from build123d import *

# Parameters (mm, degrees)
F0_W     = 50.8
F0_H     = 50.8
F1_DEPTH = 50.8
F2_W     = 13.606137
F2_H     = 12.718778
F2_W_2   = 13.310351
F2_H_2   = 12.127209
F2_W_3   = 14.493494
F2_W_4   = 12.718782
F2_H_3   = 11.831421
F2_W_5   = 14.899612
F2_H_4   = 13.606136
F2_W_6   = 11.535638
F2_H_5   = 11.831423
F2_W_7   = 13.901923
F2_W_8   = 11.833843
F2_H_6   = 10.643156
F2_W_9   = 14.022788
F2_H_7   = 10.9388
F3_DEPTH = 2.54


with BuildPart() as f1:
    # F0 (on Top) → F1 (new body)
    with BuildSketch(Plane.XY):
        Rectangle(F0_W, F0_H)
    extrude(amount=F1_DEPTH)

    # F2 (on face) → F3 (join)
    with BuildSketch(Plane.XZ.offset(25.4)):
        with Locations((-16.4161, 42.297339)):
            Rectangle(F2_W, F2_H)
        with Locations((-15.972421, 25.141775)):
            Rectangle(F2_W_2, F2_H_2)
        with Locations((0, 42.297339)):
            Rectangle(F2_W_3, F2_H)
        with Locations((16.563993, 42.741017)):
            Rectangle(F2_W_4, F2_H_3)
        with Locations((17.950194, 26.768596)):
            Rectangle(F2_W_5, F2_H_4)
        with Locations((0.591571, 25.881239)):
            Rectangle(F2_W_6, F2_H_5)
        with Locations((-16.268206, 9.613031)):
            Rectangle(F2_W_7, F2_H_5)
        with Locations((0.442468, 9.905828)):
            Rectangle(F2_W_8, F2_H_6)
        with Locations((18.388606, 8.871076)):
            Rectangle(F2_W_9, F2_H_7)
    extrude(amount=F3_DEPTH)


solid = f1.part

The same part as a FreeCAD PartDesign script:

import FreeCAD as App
import Part
import Sketcher
from FreeCAD import Vector
Q = App.Units.Quantity

doc = App.newDocument("Part")
body = doc.addObject("PartDesign::Body", "Body")

sketch1 = body.newObject("Sketcher::SketchObject", "Sketch")
sketch1.AttachmentSupport = (doc.getObject("XY_Plane"), [""])
sketch1.MapMode = "FlatFace"
sketch1.addGeometry(Part.LineSegment(Vector(-25, 25, 0), Vector(-25, -25, 0)), False)
sketch1.addGeometry(Part.LineSegment(Vector(-25, -25, 0), Vector(25, -25, 0)), False)
sketch1.addGeometry(Part.LineSegment(Vector(25, -25, 0), Vector(25, 25, 0)), False)
sketch1.addGeometry(Part.LineSegment(Vector(25, 25, 0), Vector(-25, 25, 0)), False)
sketch1.addConstraint(Sketcher.Constraint("Coincident", 0, 2, 1, 1))
sketch1.addConstraint(Sketcher.Constraint("Coincident", 1, 2, 2, 1))
sketch1.addConstraint(Sketcher.Constraint("Coincident", 2, 2, 3, 1))
sketch1.addConstraint(Sketcher.Constraint("Coincident", 3, 2, 0, 1))
sketch1.addConstraint(Sketcher.Constraint("Vertical", 0))
sketch1.addConstraint(Sketcher.Constraint("Horizontal", 1))
sketch1.addConstraint(Sketcher.Constraint("Vertical", 2))
sketch1.addConstraint(Sketcher.Constraint("Horizontal", 3))
sketch1.addConstraint(Sketcher.Constraint("Symmetric", 0, 2, 2, 2, -1, 1))
sketch1.addConstraint(Sketcher.Constraint("Equal", 3, 0))
sketch1.addConstraint(Sketcher.Constraint("DistanceX", 1, 1, 1, 2, Q("2 in")))
pad1 = body.newObject("PartDesign::Pad", "Pad")
pad1.Profile = sketch1
pad1.Length = Q("2 in")

sketch2 = body.newObject("Sketcher::SketchObject", "Sketch001")
sketch2.AttachmentSupport = (doc.getObject("XZ_Plane"), [""])
sketch2.MapMode = "FlatFace"
sketch2.AttachmentOffset = App.Placement(Vector(0, 0, 1 * 25.4), App.Rotation())
sketch2.addGeometry(Part.LineSegment(Vector(-23, 49, 0), Vector(-23, 36, 0)), False)
sketch2.addGeometry(Part.LineSegment(Vector(-23, 36, 0), Vector(-10, 36, 0)), False)
sketch2.addGeometry(Part.LineSegment(Vector(-10, 36, 0), Vector(-10, 49, 0)), False)
sketch2.addGeometry(Part.LineSegment(Vector(-10, 49, 0), Vector(-23, 49, 0)), False)
sketch2.addGeometry(Part.LineSegment(Vector(-23, 31, 0), Vector(-23, 19, 0)), False)
sketch2.addGeometry(Part.LineSegment(Vector(-23, 19, 0), Vector(-9, 19, 0)), False)
sketch2.addGeometry(Part.LineSegment(Vector(-9, 19, 0), Vector(-9, 31, 0)), False)
sketch2.addGeometry(Part.LineSegment(Vector(-9, 31, 0), Vector(-23, 31, 0)), False)
sketch2.addGeometry(Part.LineSegment(Vector(-7, 49, 0), Vector(-7, 36, 0)), False)
sketch2.addGeometry(Part.LineSegment(Vector(-7, 36, 0), Vector(7, 36, 0)), False)
sketch2.addGeometry(Part.LineSegment(Vector(7, 36, 0), Vector(7, 49, 0)), False)
sketch2.addGeometry(Part.LineSegment(Vector(7, 49, 0), Vector(-7, 49, 0)), False)
sketch2.addGeometry(Part.LineSegment(Vector(10, 49, 0), Vector(10, 37, 0)), False)
sketch2.addGeometry(Part.LineSegment(Vector(10, 37, 0), Vector(23, 37, 0)), False)
sketch2.addGeometry(Part.LineSegment(Vector(23, 37, 0), Vector(23, 49, 0)), False)
sketch2.addGeometry(Part.LineSegment(Vector(23, 49, 0), Vector(10, 49, 0)), False)
sketch2.addGeometry(Part.LineSegment(Vector(11, 34, 0), Vector(11, 20, 0)), False)
sketch2.addGeometry(Part.LineSegment(Vector(11, 20, 0), Vector(25, 20, 0)), False)
sketch2.addGeometry(Part.LineSegment(Vector(25, 20, 0), Vector(25, 34, 0)), False)
sketch2.addGeometry(Part.LineSegment(Vector(25, 34, 0), Vector(11, 34, 0)), False)
sketch2.addGeometry(Part.LineSegment(Vector(-5, 32, 0), Vector(-5, 20, 0)), False)
sketch2.addGeometry(Part.LineSegment(Vector(-5, 20, 0), Vector(6, 20, 0)), False)
sketch2.addGeometry(Part.LineSegment(Vector(6, 20, 0), Vector(6, 32, 0)), False)
sketch2.addGeometry(Part.LineSegment(Vector(6, 32, 0), Vector(-5, 32, 0)), False)
sketch2.addGeometry(Part.LineSegment(Vector(-23, 16, 0), Vector(-23, 4, 0)), False)
sketch2.addGeometry(Part.LineSegment(Vector(-23, 4, 0), Vector(-9, 4, 0)), False)
sketch2.addGeometry(Part.LineSegment(Vector(-9, 4, 0), Vector(-9, 16, 0)), False)
sketch2.addGeometry(Part.LineSegment(Vector(-9, 16, 0), Vector(-23, 16, 0)), False)
sketch2.addGeometry(Part.LineSegment(Vector(-5, 15, 0), Vector(-5, 5, 0)), False)
sketch2.addGeometry(Part.LineSegment(Vector(-5, 5, 0), Vector(6, 5, 0)), False)
sketch2.addGeometry(Part.LineSegment(Vector(6, 5, 0), Vector(6, 15, 0)), False)
sketch2.addGeometry(Part.LineSegment(Vector(6, 15, 0), Vector(-5, 15, 0)), False)
sketch2.addGeometry(Part.LineSegment(Vector(11, 14, 0), Vector(11, 3, 0)), False)
sketch2.addGeometry(Part.LineSegment(Vector(11, 3, 0), Vector(25, 3, 0)), False)
sketch2.addGeometry(Part.LineSegment(Vector(25, 3, 0), Vector(25, 14, 0)), False)
sketch2.addGeometry(Part.LineSegment(Vector(25, 14, 0), Vector(11, 14, 0)), False)
sketch2.addConstraint(Sketcher.Constraint("Coincident", 0, 2, 1, 1))
sketch2.addConstraint(Sketcher.Constraint("Coincident", 1, 2, 2, 1))
sketch2.addConstraint(Sketcher.Constraint("Coincident", 2, 2, 3, 1))
sketch2.addConstraint(Sketcher.Constraint("Coincident", 3, 2, 0, 1))
sketch2.addConstraint(Sketcher.Constraint("Coincident", 4, 2, 5, 1))
sketch2.addConstraint(Sketcher.Constraint("Coincident", 5, 2, 6, 1))
sketch2.addConstraint(Sketcher.Constraint("Coincident", 6, 2, 7, 1))
sketch2.addConstraint(Sketcher.Constraint("Coincident", 7, 2, 4, 1))
sketch2.addConstraint(Sketcher.Constraint("Coincident", 8, 2, 9, 1))
sketch2.addConstraint(Sketcher.Constraint("Coincident", 9, 2, 10, 1))
sketch2.addConstraint(Sketcher.Constraint("Coincident", 10, 2, 11, 1))
sketch2.addConstraint(Sketcher.Constraint("Coincident", 11, 2, 8, 1))
sketch2.addConstraint(Sketcher.Constraint("Coincident", 12, 2, 13, 1))
sketch2.addConstraint(Sketcher.Constraint("Coincident", 13, 2, 14, 1))
sketch2.addConstraint(Sketcher.Constraint("Coincident", 14, 2, 15, 1))
sketch2.addConstraint(Sketcher.Constraint("Coincident", 15, 2, 12, 1))
sketch2.addConstraint(Sketcher.Constraint("Coincident", 16, 2, 17, 1))
sketch2.addConstraint(Sketcher.Constraint("Coincident", 17, 2, 18, 1))
sketch2.addConstraint(Sketcher.Constraint("Coincident", 18, 2, 19, 1))
sketch2.addConstraint(Sketcher.Constraint("Coincident", 19, 2, 16, 1))
sketch2.addConstraint(Sketcher.Constraint("Coincident", 20, 2, 21, 1))
sketch2.addConstraint(Sketcher.Constraint("Coincident", 21, 2, 22, 1))
sketch2.addConstraint(Sketcher.Constraint("Coincident", 22, 2, 23, 1))
sketch2.addConstraint(Sketcher.Constraint("Coincident", 23, 2, 20, 1))
sketch2.addConstraint(Sketcher.Constraint("Coincident", 24, 2, 25, 1))
sketch2.addConstraint(Sketcher.Constraint("Coincident", 25, 2, 26, 1))
sketch2.addConstraint(Sketcher.Constraint("Coincident", 26, 2, 27, 1))
sketch2.addConstraint(Sketcher.Constraint("Coincident", 27, 2, 24, 1))
sketch2.addConstraint(Sketcher.Constraint("Coincident", 28, 2, 29, 1))
sketch2.addConstraint(Sketcher.Constraint("Coincident", 29, 2, 30, 1))
sketch2.addConstraint(Sketcher.Constraint("Coincident", 30, 2, 31, 1))
sketch2.addConstraint(Sketcher.Constraint("Coincident", 31, 2, 28, 1))
sketch2.addConstraint(Sketcher.Constraint("Coincident", 32, 2, 33, 1))
sketch2.addConstraint(Sketcher.Constraint("Coincident", 33, 2, 34, 1))
sketch2.addConstraint(Sketcher.Constraint("Coincident", 34, 2, 35, 1))
sketch2.addConstraint(Sketcher.Constraint("Coincident", 35, 2, 32, 1))
sketch2.addConstraint(Sketcher.Constraint("Vertical", 0))
sketch2.addConstraint(Sketcher.Constraint("Horizontal", 1))
sketch2.addConstraint(Sketcher.Constraint("Vertical", 2))
sketch2.addConstraint(Sketcher.Constraint("Horizontal", 3))
sketch2.addConstraint(Sketcher.Constraint("Vertical", 4))
sketch2.addConstraint(Sketcher.Constraint("Horizontal", 5))
sketch2.addConstraint(Sketcher.Constraint("Vertical", 6))
sketch2.addConstraint(Sketcher.Constraint("Horizontal", 7))
sketch2.addConstraint(Sketcher.Constraint("Vertical", 8))
sketch2.addConstraint(Sketcher.Constraint("Horizontal", 9))
sketch2.addConstraint(Sketcher.Constraint("Vertical", 10))
sketch2.addConstraint(Sketcher.Constraint("Horizontal", 11))
sketch2.addConstraint(Sketcher.Constraint("Vertical", 12))
sketch2.addConstraint(Sketcher.Constraint("Horizontal", 13))
sketch2.addConstraint(Sketcher.Constraint("Vertical", 14))
sketch2.addConstraint(Sketcher.Constraint("Horizontal", 15))
sketch2.addConstraint(Sketcher.Constraint("Vertical", 16))
sketch2.addConstraint(Sketcher.Constraint("Horizontal", 17))
sketch2.addConstraint(Sketcher.Constraint("Vertical", 18))
sketch2.addConstraint(Sketcher.Constraint("Horizontal", 19))
sketch2.addConstraint(Sketcher.Constraint("Vertical", 20))
sketch2.addConstraint(Sketcher.Constraint("Horizontal", 21))
sketch2.addConstraint(Sketcher.Constraint("Vertical", 22))
sketch2.addConstraint(Sketcher.Constraint("Horizontal", 23))
sketch2.addConstraint(Sketcher.Constraint("Vertical", 24))
sketch2.addConstraint(Sketcher.Constraint("Horizontal", 25))
sketch2.addConstraint(Sketcher.Constraint("Vertical", 26))
sketch2.addConstraint(Sketcher.Constraint("Horizontal", 27))
sketch2.addConstraint(Sketcher.Constraint("Vertical", 28))
sketch2.addConstraint(Sketcher.Constraint("Horizontal", 29))
sketch2.addConstraint(Sketcher.Constraint("Vertical", 30))
sketch2.addConstraint(Sketcher.Constraint("Horizontal", 31))
sketch2.addConstraint(Sketcher.Constraint("Vertical", 32))
sketch2.addConstraint(Sketcher.Constraint("Horizontal", 33))
sketch2.addConstraint(Sketcher.Constraint("Vertical", 34))
sketch2.addConstraint(Sketcher.Constraint("Horizontal", 35))
sketch2.addConstraint(Sketcher.Constraint("Horizontal", 1, 2, 8, 2))
sketch2.addConstraint(Sketcher.Constraint("Horizontal", 3, 2, 10, 2))
sketch2.addConstraint(Sketcher.Constraint("Horizontal", 11, 2, 14, 2))
sketch2.addConstraint(Sketcher.Constraint("Horizontal", 17, 2, 20, 2))
sketch2.addConstraint(Sketcher.Constraint("Vertical", 3, 2, 24, 2))
sketch2.addConstraint(Sketcher.Constraint("Vertical", 6, 2, 25, 2))
sketch2.addConstraint(Sketcher.Constraint("Vertical", 22, 2, 29, 2))
sketch2.addConstraint(Sketcher.Constraint("Vertical", 18, 2, 33, 2))
sketch2.addConstraint(Sketcher.Constraint("Equal", 3, 16))
sketch2.addConstraint(Sketcher.Constraint("Equal", 22, 24))
sketch2.addConstraint(Sketcher.Constraint("DistanceX", -1, 1, 17, 2, Q("1 in")))
sketch2.addConstraint(Sketcher.Constraint("DistanceY", 32, 2, 32, 1, Q("10.9388 mm")))
sketch2.addConstraint(Sketcher.Constraint("DistanceY", 18, 2, 14, 2, Q("0.5939001 in")))
sketch2.addConstraint(Sketcher.Constraint("DistanceX", 5, 1, 5, 2, Q("13.310351 mm")))
sketch2.addConstraint(Sketcher.Constraint("DistanceX", 13, 1, 13, 2, Q("12.718782 mm")))
sketch2.addConstraint(Sketcher.Constraint("DistanceY", 4, 2, 4, 1, Q("12.127209 mm")))
sketch2.addConstraint(Sketcher.Constraint("DistanceY", 12, 2, 12, 1, Q("11.831421 mm")))
sketch2.addConstraint(Sketcher.Constraint("DistanceX", 6, 2, 8, 2, Q("2.070499 mm")))
sketch2.addConstraint(Sketcher.Constraint("DistanceY", 17, 2, 14, 2, Q("28.6912 mm")))
sketch2.addConstraint(Sketcher.Constraint("DistanceX", 8, 2, 20, 2, Q("2.070499 mm")))
sketch2.addConstraint(Sketcher.Constraint("DistanceY", 22, 2, 9, 2, Q("4.140999 mm")))
sketch2.addConstraint(Sketcher.Constraint("DistanceX", 29, 2, 16, 2, Q("4.140998 mm")))
sketch2.addConstraint(Sketcher.Constraint("DistanceX", 9, 1, 9, 2, Q("14.493494 mm")))
sketch2.addConstraint(Sketcher.Constraint("DistanceX", 17, 1, 17, 2, Q("14.899612 mm")))
sketch2.addConstraint(Sketcher.Constraint("DistanceX", 21, 1, 21, 2, Q("11.535638 mm")))
sketch2.addConstraint(Sketcher.Constraint("DistanceX", 25, 1, 25, 2, Q("13.901923 mm")))
sketch2.addConstraint(Sketcher.Constraint("DistanceX", 29, 1, 29, 2, Q("11.833843 mm")))
sketch2.addConstraint(Sketcher.Constraint("DistanceX", 33, 1, 33, 2, Q("14.022788 mm")))
sketch2.addConstraint(Sketcher.Constraint("DistanceY", 0, 2, 0, 1, Q("12.718778 mm")))
sketch2.addConstraint(Sketcher.Constraint("DistanceY", 28, 2, 28, 1, Q("10.643156 mm")))
sketch2.addConstraint(Sketcher.Constraint("DistanceY", -1, 1, 0, 2, Q("35.93795 mm")))
sketch2.addConstraint(Sketcher.Constraint("DistanceY", -1, 1, 4, 2, Q("19.07817 mm")))
sketch2.addConstraint(Sketcher.Constraint("DistanceY", -1, 1, 24, 2, Q("3.697319 mm")))
sketch2.addConstraint(Sketcher.Constraint("DistanceY", -1, 1, 28, 2, Q("4.58425 mm")))
sketch2.addConstraint(Sketcher.Constraint("DistanceX", 8, 2, 12, 2, Q("17.451349 mm")))
sketch2.addConstraint(Sketcher.Constraint("DistanceY", 32, 2, 30, 2, Q("11.82573 mm")))
pad2 = body.newObject("PartDesign::Pad", "Pad001")
pad2.Profile = sketch2
pad2.Length = Q("0.1 in")

doc.recompute()
